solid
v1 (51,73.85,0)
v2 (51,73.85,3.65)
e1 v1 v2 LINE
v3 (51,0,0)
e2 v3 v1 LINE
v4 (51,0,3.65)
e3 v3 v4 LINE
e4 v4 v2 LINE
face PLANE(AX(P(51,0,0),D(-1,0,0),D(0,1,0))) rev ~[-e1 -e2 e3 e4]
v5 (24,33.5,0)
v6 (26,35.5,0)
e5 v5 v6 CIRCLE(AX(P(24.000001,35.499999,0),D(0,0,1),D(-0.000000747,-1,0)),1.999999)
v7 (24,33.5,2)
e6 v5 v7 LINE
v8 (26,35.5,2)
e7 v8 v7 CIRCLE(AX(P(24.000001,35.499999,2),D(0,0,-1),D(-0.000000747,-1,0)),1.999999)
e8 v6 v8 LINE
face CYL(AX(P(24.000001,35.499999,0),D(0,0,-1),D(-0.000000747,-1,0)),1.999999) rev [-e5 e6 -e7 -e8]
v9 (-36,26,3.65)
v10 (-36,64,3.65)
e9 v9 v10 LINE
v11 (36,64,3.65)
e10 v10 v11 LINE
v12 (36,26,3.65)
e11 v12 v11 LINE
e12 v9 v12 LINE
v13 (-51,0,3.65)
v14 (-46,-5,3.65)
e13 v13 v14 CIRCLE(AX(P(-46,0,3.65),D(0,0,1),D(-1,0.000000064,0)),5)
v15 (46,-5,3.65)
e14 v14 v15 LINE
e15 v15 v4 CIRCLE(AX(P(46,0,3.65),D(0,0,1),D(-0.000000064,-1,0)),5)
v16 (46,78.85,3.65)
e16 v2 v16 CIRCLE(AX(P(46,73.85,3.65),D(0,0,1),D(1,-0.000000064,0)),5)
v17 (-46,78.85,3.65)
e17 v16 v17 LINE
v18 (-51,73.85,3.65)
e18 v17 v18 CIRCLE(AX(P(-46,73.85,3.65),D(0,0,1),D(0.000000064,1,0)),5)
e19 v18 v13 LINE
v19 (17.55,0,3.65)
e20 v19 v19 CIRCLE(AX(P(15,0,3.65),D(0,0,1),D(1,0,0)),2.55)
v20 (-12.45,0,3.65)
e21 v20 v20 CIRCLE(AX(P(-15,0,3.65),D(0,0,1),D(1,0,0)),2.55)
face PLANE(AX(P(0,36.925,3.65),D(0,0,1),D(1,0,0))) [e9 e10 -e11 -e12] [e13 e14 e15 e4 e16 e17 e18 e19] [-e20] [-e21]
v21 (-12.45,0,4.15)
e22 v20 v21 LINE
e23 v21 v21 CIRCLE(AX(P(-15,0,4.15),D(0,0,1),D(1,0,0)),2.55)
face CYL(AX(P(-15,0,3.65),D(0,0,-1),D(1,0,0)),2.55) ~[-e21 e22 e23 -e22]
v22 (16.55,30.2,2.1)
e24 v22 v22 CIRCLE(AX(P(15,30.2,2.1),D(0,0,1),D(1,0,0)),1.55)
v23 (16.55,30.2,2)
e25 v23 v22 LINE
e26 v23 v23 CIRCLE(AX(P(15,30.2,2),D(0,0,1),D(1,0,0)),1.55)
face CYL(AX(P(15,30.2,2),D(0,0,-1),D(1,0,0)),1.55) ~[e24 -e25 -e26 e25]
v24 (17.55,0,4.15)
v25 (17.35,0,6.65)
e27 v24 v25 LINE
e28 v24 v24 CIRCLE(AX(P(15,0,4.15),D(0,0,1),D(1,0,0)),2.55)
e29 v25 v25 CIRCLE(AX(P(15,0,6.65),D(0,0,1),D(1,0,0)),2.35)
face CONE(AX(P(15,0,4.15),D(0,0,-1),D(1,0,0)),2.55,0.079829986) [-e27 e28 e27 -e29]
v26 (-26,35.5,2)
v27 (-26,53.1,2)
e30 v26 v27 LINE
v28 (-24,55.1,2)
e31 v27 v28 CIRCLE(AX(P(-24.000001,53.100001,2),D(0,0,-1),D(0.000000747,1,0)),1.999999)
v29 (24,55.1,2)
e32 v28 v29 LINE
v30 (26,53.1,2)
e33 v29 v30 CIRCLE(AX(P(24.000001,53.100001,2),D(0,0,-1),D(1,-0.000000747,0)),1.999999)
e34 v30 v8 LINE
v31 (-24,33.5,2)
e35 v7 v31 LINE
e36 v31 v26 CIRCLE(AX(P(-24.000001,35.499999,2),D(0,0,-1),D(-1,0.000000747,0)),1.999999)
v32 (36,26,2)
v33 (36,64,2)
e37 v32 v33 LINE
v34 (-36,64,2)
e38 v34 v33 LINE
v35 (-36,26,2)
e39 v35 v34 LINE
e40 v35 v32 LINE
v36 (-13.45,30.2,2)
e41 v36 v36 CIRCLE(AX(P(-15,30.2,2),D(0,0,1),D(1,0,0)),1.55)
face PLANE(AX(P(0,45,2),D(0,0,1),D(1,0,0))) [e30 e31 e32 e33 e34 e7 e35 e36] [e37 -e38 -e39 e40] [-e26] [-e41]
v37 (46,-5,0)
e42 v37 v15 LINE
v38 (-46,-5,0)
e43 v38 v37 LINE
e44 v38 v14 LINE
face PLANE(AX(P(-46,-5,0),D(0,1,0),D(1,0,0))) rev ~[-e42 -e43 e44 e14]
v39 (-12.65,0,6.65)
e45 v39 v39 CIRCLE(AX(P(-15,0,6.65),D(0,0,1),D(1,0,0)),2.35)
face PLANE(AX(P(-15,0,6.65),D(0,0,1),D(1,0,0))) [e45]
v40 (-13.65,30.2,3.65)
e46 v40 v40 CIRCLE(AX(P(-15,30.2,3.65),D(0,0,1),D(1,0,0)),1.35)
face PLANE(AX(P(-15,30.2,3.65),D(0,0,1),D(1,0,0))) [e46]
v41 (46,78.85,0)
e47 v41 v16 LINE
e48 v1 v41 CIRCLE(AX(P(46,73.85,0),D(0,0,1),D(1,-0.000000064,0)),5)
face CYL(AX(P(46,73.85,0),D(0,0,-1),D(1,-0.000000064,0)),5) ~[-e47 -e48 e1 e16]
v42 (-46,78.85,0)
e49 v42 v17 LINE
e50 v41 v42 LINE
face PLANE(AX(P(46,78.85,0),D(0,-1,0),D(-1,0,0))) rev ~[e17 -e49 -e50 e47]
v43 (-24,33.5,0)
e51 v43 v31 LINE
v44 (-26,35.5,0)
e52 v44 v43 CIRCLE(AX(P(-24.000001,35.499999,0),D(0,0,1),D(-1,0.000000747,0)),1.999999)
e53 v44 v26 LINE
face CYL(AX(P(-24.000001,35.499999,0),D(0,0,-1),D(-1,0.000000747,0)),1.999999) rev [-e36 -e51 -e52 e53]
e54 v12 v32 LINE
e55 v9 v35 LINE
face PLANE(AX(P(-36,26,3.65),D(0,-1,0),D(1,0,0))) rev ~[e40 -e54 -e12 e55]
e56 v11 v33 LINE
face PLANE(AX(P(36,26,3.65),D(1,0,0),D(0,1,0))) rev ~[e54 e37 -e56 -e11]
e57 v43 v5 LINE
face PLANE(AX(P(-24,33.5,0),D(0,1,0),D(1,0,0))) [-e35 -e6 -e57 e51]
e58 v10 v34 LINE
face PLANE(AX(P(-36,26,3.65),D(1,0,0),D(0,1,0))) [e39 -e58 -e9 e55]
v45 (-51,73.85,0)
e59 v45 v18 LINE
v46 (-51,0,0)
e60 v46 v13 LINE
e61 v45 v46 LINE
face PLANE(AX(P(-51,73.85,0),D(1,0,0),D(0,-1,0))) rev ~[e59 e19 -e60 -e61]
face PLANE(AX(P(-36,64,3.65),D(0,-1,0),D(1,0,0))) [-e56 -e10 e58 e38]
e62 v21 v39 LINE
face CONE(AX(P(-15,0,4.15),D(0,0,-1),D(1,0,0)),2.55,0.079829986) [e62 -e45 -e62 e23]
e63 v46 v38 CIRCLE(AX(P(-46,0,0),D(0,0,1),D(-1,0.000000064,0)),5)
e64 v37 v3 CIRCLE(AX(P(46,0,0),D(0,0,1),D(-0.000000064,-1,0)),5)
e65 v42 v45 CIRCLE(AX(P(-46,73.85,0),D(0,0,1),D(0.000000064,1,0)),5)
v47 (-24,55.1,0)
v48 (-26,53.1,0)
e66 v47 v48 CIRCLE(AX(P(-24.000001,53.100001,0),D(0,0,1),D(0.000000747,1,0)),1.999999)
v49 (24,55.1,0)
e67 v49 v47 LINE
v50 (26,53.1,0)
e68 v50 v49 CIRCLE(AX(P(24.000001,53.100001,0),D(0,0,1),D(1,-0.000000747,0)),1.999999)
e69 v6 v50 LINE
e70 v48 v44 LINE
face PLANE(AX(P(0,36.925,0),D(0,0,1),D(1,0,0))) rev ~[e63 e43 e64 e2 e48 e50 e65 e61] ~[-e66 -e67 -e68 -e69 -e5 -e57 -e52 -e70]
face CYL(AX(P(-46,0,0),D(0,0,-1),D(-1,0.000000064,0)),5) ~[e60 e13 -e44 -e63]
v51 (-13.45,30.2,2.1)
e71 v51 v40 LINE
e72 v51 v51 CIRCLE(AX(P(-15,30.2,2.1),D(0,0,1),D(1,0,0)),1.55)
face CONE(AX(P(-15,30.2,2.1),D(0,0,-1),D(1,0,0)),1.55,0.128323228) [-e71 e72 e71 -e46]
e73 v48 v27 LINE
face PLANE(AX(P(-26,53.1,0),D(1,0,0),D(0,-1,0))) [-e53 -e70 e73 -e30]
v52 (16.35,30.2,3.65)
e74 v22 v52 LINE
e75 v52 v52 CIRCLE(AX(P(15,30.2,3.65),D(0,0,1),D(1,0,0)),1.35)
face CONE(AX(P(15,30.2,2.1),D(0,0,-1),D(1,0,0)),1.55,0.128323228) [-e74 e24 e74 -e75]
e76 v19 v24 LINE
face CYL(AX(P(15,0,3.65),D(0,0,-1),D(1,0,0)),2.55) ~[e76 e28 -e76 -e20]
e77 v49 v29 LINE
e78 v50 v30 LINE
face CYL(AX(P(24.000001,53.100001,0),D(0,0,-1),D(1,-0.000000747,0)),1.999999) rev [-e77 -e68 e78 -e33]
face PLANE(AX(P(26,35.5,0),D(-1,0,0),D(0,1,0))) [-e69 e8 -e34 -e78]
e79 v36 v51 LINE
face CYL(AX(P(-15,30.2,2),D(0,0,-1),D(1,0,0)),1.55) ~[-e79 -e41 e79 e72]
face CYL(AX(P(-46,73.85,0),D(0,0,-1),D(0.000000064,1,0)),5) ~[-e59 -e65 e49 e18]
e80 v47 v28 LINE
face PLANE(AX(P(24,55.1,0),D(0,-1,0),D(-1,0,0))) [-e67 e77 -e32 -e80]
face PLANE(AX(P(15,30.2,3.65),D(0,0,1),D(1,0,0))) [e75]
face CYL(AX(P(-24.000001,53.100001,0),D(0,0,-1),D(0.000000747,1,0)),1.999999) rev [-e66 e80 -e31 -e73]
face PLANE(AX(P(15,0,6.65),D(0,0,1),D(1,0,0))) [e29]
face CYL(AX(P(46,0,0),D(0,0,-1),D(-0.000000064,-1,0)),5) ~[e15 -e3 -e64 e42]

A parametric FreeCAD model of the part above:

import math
import FreeCAD as App
import Part
import Sketcher
from FreeCAD import Vector
Q = App.Units.Quantity


def edges_at(feature, points):
    """Names of the edges that pass closest to the given points."""
    edges = feature.Shape.Edges
    near = lambda p: min(range(len(edges)), key=lambda i: edges[i].distToShape(Part.Vertex(*p))[0])
    return sorted({f"Edge{near(p) + 1}" for p in points})

doc = App.newDocument("Part")
body = doc.addObject("PartDesign::Body", "Body")

# Sketch on XY plane
sketch1 = body.newObject("Sketcher::SketchObject", "Sketch")
sketch1.AttachmentSupport = (doc.getObject("XY_Plane"), [""])
sketch1.MapMode = "FlatFace"
sketch1.addGeometry([
    Part.LineSegment(Vector(-51, 73.8, 0), Vector(-51, 0, 0)),  # 0
    Part.ArcOfCircle(Part.Circle(Vector(-46, 0, 0), Vector(0, 0, 1), 5), math.radians(180), math.radians(270)),  # 1
    Part.LineSegment(Vector(-46, -5, 0), Vector(46, -5, 0)),  # 2
    Part.ArcOfCircle(Part.Circle(Vector(46, 0, 0), Vector(0, 0, 1), 5), math.radians(-90), math.radians(0)),  # 3
    Part.LineSegment(Vector(51, 0, 0), Vector(51, 73.8, 0)),  # 4
    Part.ArcOfCircle(Part.Circle(Vector(46, 73.9, 0), Vector(0, 0, 1), 5), math.radians(0), math.radians(90)),  # 5
    Part.LineSegment(Vector(46, 78.8, 0), Vector(-46, 78.8, 0)),  # 6
    Part.ArcOfCircle(Part.Circle(Vector(-46, 73.9, 0), Vector(0, 0, 1), 5), math.radians(90), math.radians(180)),  # 7
], False)
sketch1.addConstraint([
    Sketcher.Constraint("Tangent", 0, 2, 1, 1),
    Sketcher.Constraint("Tangent", 1, 2, 2, 1),
    Sketcher.Constraint("Tangent", 2, 2, 3, 1),
    Sketcher.Constraint("Tangent", 3, 2, 4, 1),
    Sketcher.Constraint("Tangent", 4, 2, 5, 1),
    Sketcher.Constraint("Tangent", 5, 2, 6, 1),
    Sketcher.Constraint("Tangent", 6, 2, 7, 1),
    Sketcher.Constraint("Tangent", 7, 2, 0, 1),
    Sketcher.Constraint("Vertical", 0),
    Sketcher.Constraint("Horizontal", 2),
    Sketcher.Constraint("Vertical", 4),
    Sketcher.Constraint("Horizontal", 6),
    Sketcher.Constraint("Equal", 1, 3),
    Sketcher.Constraint("Equal", 3, 5),
    Sketcher.Constraint("Equal", 5, 7),
    Sketcher.Constraint("Symmetric", 1, 3, 3, 3, -1, 1),
    Sketcher.Constraint("Radius", 1, Q("5 mm")),
    Sketcher.Constraint("DistanceX", 2, 1, 2, 2, Q("92 mm")),
    Sketcher.Constraint("DistanceY", 0, 2, 0, 1, Q("73.85 mm")),
])
pad1 = body.newObject("PartDesign::Pad", "Pad")
pad1.Profile = sketch1
pad1.Length = 3.65

# Sketch on XY plane
sketch2 = body.newObject("Sketcher::SketchObject", "Sketch001")
sketch2.AttachmentSupport = (doc.getObject("XY_Plane"), [""])
sketch2.MapMode = "FlatFace"
sketch2.AttachmentOffset = App.Placement(Vector(0, 0, 3.65), App.Rotation())
sketch2.addGeometry([
    Part.Circle(Vector(-15, 0, 0), Vector(0, 0, 1), 2.5),
    Part.Circle(Vector(15, 0, 0), Vector(0, 0, 1), 2.5),
], False)
sketch2.addConstraint([
    Sketcher.Constraint("Equal", 0, 1),
    Sketcher.Constraint("Symmetric", 0, 3, 1, 3, -1, 1),
    Sketcher.Constraint("PointOnObject", 0, 3, -1),
    Sketcher.Constraint("Diameter", 0, Q("5.1 mm")),
    Sketcher.Constraint("DistanceX", 0, 3, -1, 1, Q("15 mm")),
])
pad2 = body.newObject("PartDesign::Pad", "Pad001")
pad2.Profile = sketch2
pad2.Length = 3

# Sketch on XY plane
sketch3 = body.newObject("Sketcher::SketchObject", "Sketch002")
sketch3.AttachmentSupport = (doc.getObject("XY_Plane"), [""])
sketch3.MapMode = "FlatFace"
sketch3.AttachmentOffset = App.Placement(Vector(0, 0, 3.65), App.Rotation())
sketch3.addGeometry([
    Part.LineSegment(Vector(-36, 64, 0), Vector(-36, 26, 0)),
    Part.LineSegment(Vector(-36, 26, 0), Vector(36, 26, 0)),
    Part.LineSegment(Vector(36, 26, 0), Vector(36, 64, 0)),
    Part.LineSegment(Vector(36, 64, 0), Vector(-36, 64, 0)),
], False)
sketch3.addConstraint([
    Sketcher.Constraint("Coincident", 0, 2, 1, 1),
    Sketcher.Constraint("Coincident", 1, 2, 2, 1),
    Sketcher.Constraint("Coincident", 2, 2, 3, 1),
    Sketcher.Constraint("Coincident", 3, 2, 0, 1),
    Sketcher.Constraint("Vertical", 0),
    Sketcher.Constraint("Horizontal", 1),
    Sketcher.Constraint("Vertical", 2),
    Sketcher.Constraint("Horizontal", 3),
    Sketcher.Constraint("DistanceX", 1, 1, 1, 2, Q("72 mm")),
    Sketcher.Constraint("DistanceY", 0, 2, 0, 1, Q("38 mm")),
    Sketcher.Constraint("DistanceX", 0, 2, -1, 1, Q("36 mm")),
    Sketcher.Constraint("DistanceY", -1, 1, 0, 2, Q("26 mm")),
])
pocket1 = body.newObject("PartDesign::Pocket", "Pocket")
pocket1.Profile = sketch3
pocket1.Length = 1.65

# Sketch on XY plane
sketch4 = body.newObject("Sketcher::SketchObject", "Sketch003")
sketch4.AttachmentSupport = (doc.getObject("XY_Plane"), [""])
sketch4.MapMode = "FlatFace"
sketch4.AttachmentOffset = App.Placement(Vector(0, 0, 2), App.Rotation())
sketch4.addGeometry([
    Part.Circle(Vector(-15, 30.2, 0), Vector(0, 0, 1), 1.6),
    Part.Circle(Vector(15, 30.2, 0), Vector(0, 0, 1), 1.6),
], False)
sketch4.addConstraint([
    Sketcher.Constraint("Equal", 0, 1),
    Sketcher.Constraint("Symmetric", 0, 3, 1, 3, -2),
    Sketcher.Constraint("Diameter", 0, Q("3.1 mm")),
    Sketcher.Constraint("DistanceX", 0, 3, -1, 1, Q("15 mm")),
    Sketcher.Constraint("DistanceY", -1, 1, 0, 3, Q("30.2 mm")),
])
pad3 = body.newObject("PartDesign::Pad", "Pad002")
pad3.Profile = sketch4
pad3.Length = 1.65
doc.recompute()

chamfer = body.newObject("PartDesign::Chamfer", "Chamfer")
chamfer.Base = (pad3, edges_at(pad3, [(-17.55, 0, 6.65)]))
chamfer.ChamferType = "Two distances"
chamfer.Size = 2.5
chamfer.Size2 = 0.2
doc.recompute()

chamfer2 = body.newObject("PartDesign::Chamfer", "Chamfer001")
chamfer2.Base = (chamfer, edges_at(chamfer, [(12.45, 0, 6.65)]))
chamfer2.ChamferType = "Two distances"
chamfer2.Size = 2.5
chamfer2.Size2 = 0.2
doc.recompute()

chamfer3 = body.newObject("PartDesign::Chamfer", "Chamfer002")
chamfer3.Base = (chamfer2, edges_at(chamfer2, [(-16.55, 30.2, 3.65)]))
chamfer3.ChamferType = "Two distances"
chamfer3.Size = 1.55
chamfer3.Size2 = 0.2
doc.recompute()

chamfer4 = body.newObject("PartDesign::Chamfer", "Chamfer003")
chamfer4.Base = (chamfer3, edges_at(chamfer3, [(13.45, 30.2, 3.65)]))
chamfer4.ChamferType = "Two distances"
chamfer4.Size = 1.55
chamfer4.Size2 = 0.2

# Sketch on XY plane
sketch5 = body.newObject("Sketcher::SketchObject", "Sketch004")
sketch5.AttachmentSupport = (doc.getObject("XY_Plane"), [""])
sketch5.MapMode = "FlatFace"
sketch5.addGeometry([
    Part.LineSegment(Vector(-26, 53.1, 0), Vector(-26, 35.5, 0)),  # 0
    Part.ArcOfCircle(Part.Circle(Vector(-24, 35.5, 0), Vector(0, 0, 1), 2), math.radians(180), math.radians(270)),  # 1
    Part.LineSegment(Vector(-24, 33.5, 0), Vector(24, 33.5, 0)),  # 2
    Part.ArcOfCircle(Part.Circle(Vector(24, 35.5, 0), Vector(0, 0, 1), 2), math.radians(-90), math.radians(0)),  # 3
    Part.LineSegment(Vector(26, 35.5, 0), Vector(26, 53.1, 0)),  # 4
    Part.ArcOfCircle(Part.Circle(Vector(24, 53.1, 0), Vector(0, 0, 1), 2), math.radians(0), math.radians(90)),  # 5
    Part.LineSegment(Vector(24, 55.1, 0), Vector(-24, 55.1, 0)),  # 6
    Part.ArcOfCircle(Part.Circle(Vector(-24, 53.1, 0), Vector(0, 0, 1), 2), math.radians(90), math.radians(180)),  # 7
], False)
sketch5.addConstraint([
    Sketcher.Constraint("Tangent", 0, 2, 1, 1),
    Sketcher.Constraint("Tangent", 1, 2, 2, 1),
    Sketcher.Constraint("Tangent", 2, 2, 3, 1),
    Sketcher.Constraint("Tangent", 3, 2, 4, 1),
    Sketcher.Constraint("Tangent", 4, 2, 5, 1),
    Sketcher.Constraint("Tangent", 5, 2, 6, 1),
    Sketcher.Constraint("Tangent", 6, 2, 7, 1),
    Sketcher.Constraint("Tangent", 7, 2, 0, 1),
    Sketcher.Constraint("Vertical", 0),
    Sketcher.Constraint("Horizontal", 2),
    Sketcher.Constraint("Vertical", 4),
    Sketcher.Constraint("Horizontal", 6),
    Sketcher.Constraint("Equal", 1, 3),
    Sketcher.Constraint("Equal", 3, 5),
    Sketcher.Constraint("Equal", 5, 7),
    Sketcher.Constraint("Radius", 1, Q("1.999999 mm")),
    Sketcher.Constraint("DistanceX", 2, 1, 2, 2, Q("48 mm")),
    Sketcher.Constraint("DistanceY", 0, 2, 0, 1, Q("17.6 mm")),
    Sketcher.Constraint("DistanceX", 1, 3, -1, 1, Q("24.000001 mm")),
    Sketcher.Constraint("DistanceY", -1, 1, 1, 3, Q("35.499999 mm")),
])
pocket2 = body.newObject("PartDesign::Pocket", "Pocket001")
pocket2.Profile = sketch5
pocket2.Type = "ThroughAll"
pocket2.Reversed = True

doc.recompute()
